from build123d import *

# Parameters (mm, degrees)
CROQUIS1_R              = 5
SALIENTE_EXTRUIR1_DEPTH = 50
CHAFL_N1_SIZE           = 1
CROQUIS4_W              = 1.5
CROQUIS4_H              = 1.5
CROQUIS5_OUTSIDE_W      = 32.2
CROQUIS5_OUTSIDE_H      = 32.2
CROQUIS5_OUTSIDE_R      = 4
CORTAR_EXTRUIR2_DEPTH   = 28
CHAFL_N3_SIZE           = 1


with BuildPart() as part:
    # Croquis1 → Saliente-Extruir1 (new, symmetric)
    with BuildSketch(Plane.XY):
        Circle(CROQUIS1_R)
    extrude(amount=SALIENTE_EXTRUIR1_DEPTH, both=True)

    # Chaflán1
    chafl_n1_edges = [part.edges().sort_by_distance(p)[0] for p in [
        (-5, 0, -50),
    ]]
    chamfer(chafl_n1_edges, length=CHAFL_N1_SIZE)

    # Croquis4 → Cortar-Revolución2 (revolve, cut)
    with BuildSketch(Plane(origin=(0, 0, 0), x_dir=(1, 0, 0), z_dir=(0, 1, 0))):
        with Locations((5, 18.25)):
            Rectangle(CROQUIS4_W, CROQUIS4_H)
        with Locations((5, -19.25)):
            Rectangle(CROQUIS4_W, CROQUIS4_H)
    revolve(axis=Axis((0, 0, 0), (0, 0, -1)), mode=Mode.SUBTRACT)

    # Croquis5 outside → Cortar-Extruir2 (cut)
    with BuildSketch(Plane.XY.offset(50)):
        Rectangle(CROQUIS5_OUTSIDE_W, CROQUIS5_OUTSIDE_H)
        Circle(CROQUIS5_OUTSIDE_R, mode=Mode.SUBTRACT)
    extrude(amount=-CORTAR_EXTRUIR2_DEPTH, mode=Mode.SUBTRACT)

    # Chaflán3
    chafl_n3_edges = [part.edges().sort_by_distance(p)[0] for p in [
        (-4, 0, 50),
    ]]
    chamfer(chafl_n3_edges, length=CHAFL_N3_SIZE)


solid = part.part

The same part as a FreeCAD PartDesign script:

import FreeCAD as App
import Part
import Sketcher

V = App.Vector
Q = App.Units.Quantity


def edges_at(feature, points):
    """Names of the edges that pass closest to the given points."""
    edges = feature.Shape.Edges
    near = lambda p: min(range(len(edges)), key=lambda i: edges[i].distToShape(Part.Vertex(*p))[0])
    return sorted({f"Edge{near(p) + 1}" for p in points})

doc = App.newDocument("Part")
body = doc.addObject("PartDesign::Body", "Body")

# Sketch on XY plane
sketch1 = body.newObject("Sketcher::SketchObject", "Sketch")
sketch1.AttachmentSupport = (doc.getObject("XY_Plane"), [""])
sketch1.MapMode = "FlatFace"
sketch1.addGeometry(Part.Circle(V(0, 0, 0), V(0, 0, 1), 5), False)
sketch1.addConstraint([
    Sketcher.Constraint("Coincident", 0, 3, -1, 1),
    Sketcher.Constraint("Diameter", 0, Q("10 mm")),
])
pad1 = body.newObject("PartDesign::Pad", "Pad")
pad1.Profile = sketch1
pad1.Length = 100
pad1.Midplane = True
doc.recompute()

chamfer = body.newObject("PartDesign::Chamfer", "Chamfer")
chamfer.Base = (pad1, edges_at(pad1, [(-5, 0, -50)]))
chamfer.Size = 1

# Sketch on XZ plane
sketch2 = body.newObject("Sketcher::SketchObject", "Sketch001")
sketch2.AttachmentSupport = (doc.getObject("XZ_Plane"), [""])
sketch2.MapMode = "FlatFace"
sketch2.addGeometry([
    Part.LineSegment(V(4.2, -19, 0), V(4.2, -17.5, 0)),  # 0
    Part.LineSegment(V(4.2, -17.5, 0), V(5.8, -17.5, 0)),  # 1
    Part.LineSegment(V(5.8, -17.5, 0), V(5.8, -19, 0)),  # 2
    Part.LineSegment(V(5.8, -19, 0), V(4.2, -19, 0)),  # 3
    Part.LineSegment(V(4.2, 18.5, 0), V(4.2, 20, 0)),  # 4
    Part.LineSegment(V(4.2, 20, 0), V(5.8, 20, 0)),  # 5
    Part.LineSegment(V(5.8, 20, 0), V(5.8, 18.5, 0)),  # 6
    Part.LineSegment(V(5.8, 18.5, 0), V(4.2, 18.5, 0)),  # 7
], False)
sketch2.addConstraint([
    Sketcher.Constraint("Coincident", 0, 2, 1, 1),
    Sketcher.Constraint("Coincident", 1, 2, 2, 1),
    Sketcher.Constraint("Coincident", 2, 2, 3, 1),
    Sketcher.Constraint("Coincident", 3, 2, 0, 1),
    Sketcher.Constraint("Coincident", 4, 2, 5, 1),
    Sketcher.Constraint("Coincident", 5, 2, 6, 1),
    Sketcher.Constraint("Coincident", 6, 2, 7, 1),
    Sketcher.Constraint("Coincident", 7, 2, 4, 1),
    Sketcher.Constraint("Vertical", 0),
    Sketcher.Constraint("Horizontal", 1),
    Sketcher.Constraint("Vertical", 2),
    Sketcher.Constraint("Horizontal", 3),
    Sketcher.Constraint("Vertical", 4),
    Sketcher.Constraint("Horizontal", 5),
    Sketcher.Constraint("Vertical", 6),
    Sketcher.Constraint("Horizontal", 7),
    Sketcher.Constraint("Vertical", 3, 2, 4, 2),
    Sketcher.Constraint("Vertical", 2, 2, 5, 2),
    Sketcher.Constraint("Equal", 7, 0),
    Sketcher.Constraint("Equal", 2, 4),
    Sketcher.Constraint("DistanceX", 1, 1, 1, 2, Q("1.5 mm")),
    Sketcher.Constraint("DistanceY", 2, 2, -1, 1, Q("19 mm")),
    Sketcher.Constraint("DistanceY", -1, 1, 4, 2, Q("20 mm")),
    Sketcher.Constraint("DistanceX", -1, 1, 0, 2, Q("4.25 mm")),
])
groove = body.newObject("PartDesign::Groove", "Groove")
groove.Profile = sketch2
groove.ReferenceAxis = (sketch2, ["V_Axis"])
groove.Angle = 360

# Sketch on XY plane
sketch3 = body.newObject("Sketcher::SketchObject", "Sketch002")
sketch3.AttachmentSupport = (doc.getObject("XY_Plane"), [""])
sketch3.MapMode = "FlatFace"
sketch3.AttachmentOffset = App.Placement(V(0, 0, 50), App.Rotation())
sketch3.addGeometry([
    Part.LineSegment(V(-16.1, 16.1, 0), V(-16.1, -16.1, 0)),  # 0
    Part.LineSegment(V(-16.1, -16.1, 0), V(16.1, -16.1, 0)),  # 1
    Part.LineSegment(V(16.1, -16.1, 0), V(16.1, 16.1, 0)),  # 2
    Part.LineSegment(V(16.1, 16.1, 0), V(-16.1, 16.1, 0)),  # 3
    Part.Circle(V(0, 0, 0), V(0, 0, 1), 4),  # 4
], False)
sketch3.addConstraint([
    Sketcher.Constraint("Coincident", 0, 2, 1, 1),
    Sketcher.Constraint("Coincident", 1, 2, 2, 1),
    Sketcher.Constraint("Coincident", 2, 2, 3, 1),
    Sketcher.Constraint("Coincident", 3, 2, 0, 1),
    Sketcher.Constraint("Vertical", 0),
    Sketcher.Constraint("Horizontal", 1),
    Sketcher.Constraint("Vertical", 2),
    Sketcher.Constraint("Horizontal", 3),
    Sketcher.Constraint("Coincident", 4, 3, -1, 1),
    Sketcher.Constraint("Symmetric", 0, 2, 2, 2, -1, 1),
    Sketcher.Constraint("Equal", 3, 0),
    Sketcher.Constraint("Diameter", 4, Q("8 mm")),
    Sketcher.Constraint("DistanceX", 1, 1, 1, 2, Q("32.2 mm")),
])
pocket1 = body.newObject("PartDesign::Pocket", "Pocket")
pocket1.Profile = sketch3
pocket1.Length = 28
doc.recompute()

chamfer2 = body.newObject("PartDesign::Chamfer", "Chamfer001")
chamfer2.Base = (pocket1, edges_at(pocket1, [(-4, 0, 50)]))
chamfer2.Size = 1

doc.recompute()
